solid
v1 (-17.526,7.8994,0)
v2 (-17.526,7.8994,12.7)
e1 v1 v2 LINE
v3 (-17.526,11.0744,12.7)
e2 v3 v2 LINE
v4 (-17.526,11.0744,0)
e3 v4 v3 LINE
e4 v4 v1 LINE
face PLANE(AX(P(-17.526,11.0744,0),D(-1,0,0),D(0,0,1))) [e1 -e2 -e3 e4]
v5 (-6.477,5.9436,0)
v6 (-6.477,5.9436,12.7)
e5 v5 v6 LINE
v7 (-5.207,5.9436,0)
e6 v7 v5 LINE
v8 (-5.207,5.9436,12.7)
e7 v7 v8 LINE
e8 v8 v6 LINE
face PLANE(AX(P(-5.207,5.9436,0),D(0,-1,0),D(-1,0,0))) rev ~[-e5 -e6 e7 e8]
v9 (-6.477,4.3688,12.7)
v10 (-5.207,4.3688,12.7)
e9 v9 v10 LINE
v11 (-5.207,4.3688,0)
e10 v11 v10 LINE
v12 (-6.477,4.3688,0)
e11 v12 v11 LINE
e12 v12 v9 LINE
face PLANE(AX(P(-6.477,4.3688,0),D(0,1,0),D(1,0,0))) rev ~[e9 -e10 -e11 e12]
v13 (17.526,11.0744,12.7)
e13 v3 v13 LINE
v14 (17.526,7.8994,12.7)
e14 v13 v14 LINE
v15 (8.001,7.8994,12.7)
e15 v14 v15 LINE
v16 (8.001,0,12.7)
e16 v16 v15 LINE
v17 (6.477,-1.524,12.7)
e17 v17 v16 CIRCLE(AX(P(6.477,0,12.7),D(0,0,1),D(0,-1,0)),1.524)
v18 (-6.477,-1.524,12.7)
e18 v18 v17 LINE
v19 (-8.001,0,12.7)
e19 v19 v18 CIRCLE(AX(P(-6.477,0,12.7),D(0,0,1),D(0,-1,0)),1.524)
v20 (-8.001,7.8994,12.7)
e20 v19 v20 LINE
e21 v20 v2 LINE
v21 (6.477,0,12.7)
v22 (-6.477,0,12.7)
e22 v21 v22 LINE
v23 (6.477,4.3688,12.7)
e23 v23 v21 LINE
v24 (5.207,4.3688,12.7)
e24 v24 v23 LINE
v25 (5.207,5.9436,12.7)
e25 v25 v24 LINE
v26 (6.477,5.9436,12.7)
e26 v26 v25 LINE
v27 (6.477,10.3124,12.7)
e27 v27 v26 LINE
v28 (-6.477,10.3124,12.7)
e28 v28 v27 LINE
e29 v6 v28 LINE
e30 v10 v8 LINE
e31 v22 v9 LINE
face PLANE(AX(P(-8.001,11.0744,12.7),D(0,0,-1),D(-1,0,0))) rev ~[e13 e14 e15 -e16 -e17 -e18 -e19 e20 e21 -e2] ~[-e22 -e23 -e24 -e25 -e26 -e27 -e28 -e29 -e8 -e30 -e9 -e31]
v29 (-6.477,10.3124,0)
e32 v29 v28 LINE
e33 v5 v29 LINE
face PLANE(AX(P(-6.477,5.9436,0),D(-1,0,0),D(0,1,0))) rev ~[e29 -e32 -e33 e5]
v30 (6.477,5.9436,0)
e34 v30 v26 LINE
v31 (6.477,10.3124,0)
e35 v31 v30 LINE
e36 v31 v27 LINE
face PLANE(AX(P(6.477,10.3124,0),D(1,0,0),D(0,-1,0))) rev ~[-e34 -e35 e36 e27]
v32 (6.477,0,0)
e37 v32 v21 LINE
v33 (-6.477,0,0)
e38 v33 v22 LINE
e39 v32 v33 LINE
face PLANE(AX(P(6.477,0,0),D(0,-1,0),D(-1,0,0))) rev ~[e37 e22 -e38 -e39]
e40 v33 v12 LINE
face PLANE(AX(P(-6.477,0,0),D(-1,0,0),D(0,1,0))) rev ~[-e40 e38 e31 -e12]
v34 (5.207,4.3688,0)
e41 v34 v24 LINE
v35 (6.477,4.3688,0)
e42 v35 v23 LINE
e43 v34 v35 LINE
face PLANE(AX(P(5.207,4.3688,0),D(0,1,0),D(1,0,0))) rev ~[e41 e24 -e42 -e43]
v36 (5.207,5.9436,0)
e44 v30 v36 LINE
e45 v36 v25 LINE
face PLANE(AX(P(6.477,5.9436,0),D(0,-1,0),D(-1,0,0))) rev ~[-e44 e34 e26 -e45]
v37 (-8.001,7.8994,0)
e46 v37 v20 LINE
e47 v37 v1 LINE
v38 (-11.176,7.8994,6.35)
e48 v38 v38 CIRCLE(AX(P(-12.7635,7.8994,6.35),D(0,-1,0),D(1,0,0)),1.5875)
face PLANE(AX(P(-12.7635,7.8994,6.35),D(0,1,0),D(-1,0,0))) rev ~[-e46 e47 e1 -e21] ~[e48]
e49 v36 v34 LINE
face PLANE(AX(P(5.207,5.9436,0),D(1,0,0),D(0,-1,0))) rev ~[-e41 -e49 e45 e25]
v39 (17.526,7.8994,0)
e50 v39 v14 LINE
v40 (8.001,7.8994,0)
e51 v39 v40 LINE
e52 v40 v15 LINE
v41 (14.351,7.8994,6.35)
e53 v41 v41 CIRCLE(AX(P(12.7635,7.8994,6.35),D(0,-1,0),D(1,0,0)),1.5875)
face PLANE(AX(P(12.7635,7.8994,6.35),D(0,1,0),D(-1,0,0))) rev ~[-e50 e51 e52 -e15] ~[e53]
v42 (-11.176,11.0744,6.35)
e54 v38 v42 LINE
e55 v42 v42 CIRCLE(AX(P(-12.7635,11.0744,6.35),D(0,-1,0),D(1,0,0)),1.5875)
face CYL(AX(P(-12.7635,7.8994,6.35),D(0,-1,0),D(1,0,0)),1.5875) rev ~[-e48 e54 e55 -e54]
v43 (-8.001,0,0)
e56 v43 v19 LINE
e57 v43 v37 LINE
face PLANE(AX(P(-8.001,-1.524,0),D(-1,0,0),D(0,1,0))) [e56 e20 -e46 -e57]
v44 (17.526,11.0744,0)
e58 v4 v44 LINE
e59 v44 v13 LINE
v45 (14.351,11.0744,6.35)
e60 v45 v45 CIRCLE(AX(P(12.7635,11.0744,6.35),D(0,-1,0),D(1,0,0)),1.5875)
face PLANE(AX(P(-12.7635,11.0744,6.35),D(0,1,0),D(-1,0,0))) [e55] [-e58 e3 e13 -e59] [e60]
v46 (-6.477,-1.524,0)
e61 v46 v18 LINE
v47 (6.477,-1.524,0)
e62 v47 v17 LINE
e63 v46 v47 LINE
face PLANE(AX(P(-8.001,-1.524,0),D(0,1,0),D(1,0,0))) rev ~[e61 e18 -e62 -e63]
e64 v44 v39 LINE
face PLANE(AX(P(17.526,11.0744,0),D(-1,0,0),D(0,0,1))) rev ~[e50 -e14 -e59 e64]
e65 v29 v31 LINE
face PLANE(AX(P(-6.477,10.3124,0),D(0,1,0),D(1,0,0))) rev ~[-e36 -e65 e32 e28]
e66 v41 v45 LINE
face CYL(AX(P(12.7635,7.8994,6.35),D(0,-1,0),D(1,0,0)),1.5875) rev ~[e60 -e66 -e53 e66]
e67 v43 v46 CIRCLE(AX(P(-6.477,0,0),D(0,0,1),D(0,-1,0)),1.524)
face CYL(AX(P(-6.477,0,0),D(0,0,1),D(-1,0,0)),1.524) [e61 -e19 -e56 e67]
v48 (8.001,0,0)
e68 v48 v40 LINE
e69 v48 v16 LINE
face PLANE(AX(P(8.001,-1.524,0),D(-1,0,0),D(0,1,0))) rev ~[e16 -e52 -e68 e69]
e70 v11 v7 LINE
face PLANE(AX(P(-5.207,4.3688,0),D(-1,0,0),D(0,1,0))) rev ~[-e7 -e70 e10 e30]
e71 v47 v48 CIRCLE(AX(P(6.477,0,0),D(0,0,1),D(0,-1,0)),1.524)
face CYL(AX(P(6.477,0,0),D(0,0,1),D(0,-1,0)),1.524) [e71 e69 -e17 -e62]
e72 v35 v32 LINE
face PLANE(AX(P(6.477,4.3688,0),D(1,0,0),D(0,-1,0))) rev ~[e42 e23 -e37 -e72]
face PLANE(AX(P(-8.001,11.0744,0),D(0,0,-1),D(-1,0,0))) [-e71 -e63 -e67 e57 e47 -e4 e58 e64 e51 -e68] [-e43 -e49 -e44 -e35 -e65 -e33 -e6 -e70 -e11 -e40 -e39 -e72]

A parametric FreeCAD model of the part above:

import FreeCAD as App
import Part
import Sketcher
Q = App.Units.Quantity


def edges_at(feature, points):
    """Names of the edges that pass closest to the given points."""
    edges = feature.Shape.Edges
    near = lambda p: min(range(len(edges)), key=lambda i: edges[i].distToShape(Part.Vertex(*p))[0])
    return sorted({f"Edge{near(p) + 1}" for p in points})

doc = App.newDocument("Part")
body = doc.addObject("PartDesign::Body", "Body")

sketch1 = body.newObject("Sketcher::SketchObject", "Sketch")
sketch1.AttachmentSupport = (doc.getObject("XY_Plane"), [""])
sketch1.MapMode = "FlatFace"
sketch1.addGeometry(Part.LineSegment(App.Vector(-8, 11.1, 0), App.Vector(-8, -1.5, 0)), False)
sketch1.addGeometry(Part.LineSegment(App.Vector(-8, -1.5, 0), App.Vector(8, -1.5, 0)), False)
sketch1.addGeometry(Part.LineSegment(App.Vector(8, -1.5, 0), App.Vector(8, 11.1, 0)), False)
sketch1.addGeometry(Part.LineSegment(App.Vector(8, 11.1, 0), App.Vector(-8, 11.1, 0)), False)
sketch1.addGeometry(Part.LineSegment(App.Vector(5.2, 4.4, 0), App.Vector(6.5, 4.4, 0)), False)
sketch1.addGeometry(Part.LineSegment(App.Vector(6.5, 4.4, 0), App.Vector(6.5, 0, 0)), False)
sketch1.addGeometry(Part.LineSegment(App.Vector(6.5, 0, 0), App.Vector(-6.5, 0, 0)), False)
sketch1.addGeometry(Part.LineSegment(App.Vector(-6.5, 0, 0), App.Vector(-6.5, 4.4, 0)), False)
sketch1.addGeometry(Part.LineSegment(App.Vector(-6.5, 4.4, 0), App.Vector(-5.2, 4.4, 0)), False)
sketch1.addGeometry(Part.LineSegment(App.Vector(-5.2, 4.4, 0), App.Vector(-5.2, 5.9, 0)), False)
sketch1.addGeometry(Part.LineSegment(App.Vector(-5.2, 5.9, 0), App.Vector(-6.5, 5.9, 0)), False)
sketch1.addGeometry(Part.LineSegment(App.Vector(-6.5, 5.9, 0), App.Vector(-6.5, 10.3, 0)), False)
sketch1.addGeometry(Part.LineSegment(App.Vector(-6.5, 10.3, 0), App.Vector(6.5, 10.3, 0)), False)
sketch1.addGeometry(Part.LineSegment(App.Vector(6.5, 10.3, 0), App.Vector(6.5, 5.9, 0)), False)
sketch1.addGeometry(Part.LineSegment(App.Vector(6.5, 5.9, 0), App.Vector(5.2, 5.9, 0)), False)
sketch1.addGeometry(Part.LineSegment(App.Vector(5.2, 5.9, 0), App.Vector(5.2, 4.4, 0)), False)
sketch1.addConstraint(Sketcher.Constraint("Coincident", 0, 2, 1, 1))
sketch1.addConstraint(Sketcher.Constraint("Coincident", 1, 2, 2, 1))
sketch1.addConstraint(Sketcher.Constraint("Coincident", 2, 2, 3, 1))
sketch1.addConstraint(Sketcher.Constraint("Coincident", 3, 2, 0, 1))
sketch1.addConstraint(Sketcher.Constraint("Coincident", 4, 2, 5, 1))
sketch1.addConstraint(Sketcher.Constraint("Coincident", 5, 2, 6, 1))
sketch1.addConstraint(Sketcher.Constraint("Coincident", 6, 2, 7, 1))
sketch1.addConstraint(Sketcher.Constraint("Coincident", 7, 2, 8, 1))
sketch1.addConstraint(Sketcher.Constraint("Coincident", 8, 2, 9, 1))
sketch1.addConstraint(Sketcher.Constraint("Coincident", 9, 2, 10, 1))
sketch1.addConstraint(Sketcher.Constraint("Coincident", 10, 2, 11, 1))
sketch1.addConstraint(Sketcher.Constraint("Coincident", 11, 2, 12, 1))
sketch1.addConstraint(Sketcher.Constraint("Coincident", 12, 2, 13, 1))
sketch1.addConstraint(Sketcher.Constraint("Coincident", 13, 2, 14, 1))
sketch1.addConstraint(Sketcher.Constraint("Coincident", 14, 2, 15, 1))
sketch1.addConstraint(Sketcher.Constraint("Coincident", 15, 2, 4, 1))
sketch1.addConstraint(Sketcher.Constraint("Vertical", 0))
sketch1.addConstraint(Sketcher.Constraint("Horizontal", 1))
sketch1.addConstraint(Sketcher.Constraint("Vertical", 2))
sketch1.addConstraint(Sketcher.Constraint("Horizontal", 3))
sketch1.addConstraint(Sketcher.Constraint("Horizontal", 4))
sketch1.addConstraint(Sketcher.Constraint("Vertical", 5))
sketch1.addConstraint(Sketcher.Constraint("Horizontal", 6))
sketch1.addConstraint(Sketcher.Constraint("Vertical", 7))
sketch1.addConstraint(Sketcher.Constraint("Horizontal", 8))
sketch1.addConstraint(Sketcher.Constraint("Vertical", 9))
sketch1.addConstraint(Sketcher.Constraint("Horizontal", 10))
sketch1.addConstraint(Sketcher.Constraint("Vertical", 11))
sketch1.addConstraint(Sketcher.Constraint("Horizontal", 12))
sketch1.addConstraint(Sketcher.Constraint("Vertical", 13))
sketch1.addConstraint(Sketcher.Constraint("Horizontal", 14))
sketch1.addConstraint(Sketcher.Constraint("Vertical", 15))
sketch1.addConstraint(Sketcher.Constraint("Symmetric", 5, 2, 6, 2, -1, 1))
sketch1.addConstraint(Sketcher.Constraint("Symmetric", 10, 2, 13, 2, -2))
sketch1.addConstraint(Sketcher.Constraint("Symmetric", 8, 2, 15, 2, -2))
sketch1.addConstraint(Sketcher.Constraint("Vertical", 7, 2, 10, 2))
sketch1.addConstraint(Sketcher.Constraint("Equal", 7, 11))
sketch1.addConstraint(Sketcher.Constraint("DistanceX", 1, 1, 1, 2, Q("0.63 in")))
sketch1.addConstraint(Sketcher.Constraint("DistanceX", 4, 1, 4, 2, Q("0.05 in")))
sketch1.addConstraint(Sketcher.Constraint("DistanceX", 6, 2, 6, 1, Q("0.51 in")))
sketch1.addConstraint(Sketcher.Constraint("DistanceY", 0, 2, 0, 1, Q("0.496 in")))
sketch1.addConstraint(Sketcher.Constraint("DistanceY", 5, 2, 5, 1, Q("0.172 in")))
sketch1.addConstraint(Sketcher.Constraint("DistanceY", 9, 1, 9, 2, Q("0.062 in")))
sketch1.addConstraint(Sketcher.Constraint("DistanceY", 0, 2, -1, 1, Q("0.06 in")))
sketch1.addConstraint(Sketcher.Constraint("DistanceX", 4, 2, 1, 2, Q("0.06 in")))
pad1 = body.newObject("PartDesign::Pad", "Pad")
pad1.Profile = sketch1
pad1.Length = Q("0.5 in")

sketch2 = body.newObject("Sketcher::SketchObject", "Sketch001")
sketch2.AttachmentSupport = (doc.getObject("XZ_Plane"), [""])
sketch2.MapMode = "FlatFace"
sketch2.AttachmentOffset = App.Placement(App.Vector(0, 0, -0.436 * 25.4), App.Rotation())
sketch2.addGeometry(Part.LineSegment(App.Vector(-8, 13, 0), App.Vector(-8, 0, 0)), False)
sketch2.addGeometry(Part.LineSegment(App.Vector(-8, 0, 0), App.Vector(-18, 0, 0)), False)
sketch2.addGeometry(Part.LineSegment(App.Vector(-18, 0, 0), App.Vector(-18, 13, 0)), False)
sketch2.addGeometry(Part.LineSegment(App.Vector(-18, 13, 0), App.Vector(-8, 13, 0)), False)
sketch2.addGeometry(Part.LineSegment(App.Vector(18, 13, 0), App.Vector(18, 0, 0)), False)
sketch2.addGeometry(Part.LineSegment(App.Vector(18, 0, 0), App.Vector(8, 0, 0)), False)
sketch2.addGeometry(Part.LineSegment(App.Vector(8, 0, 0), App.Vector(8, 13, 0)), False)
sketch2.addGeometry(Part.LineSegment(App.Vector(8, 13, 0), App.Vector(18, 13, 0)), False)
sketch2.addConstraint(Sketcher.Constraint("Coincident", 0, 2, 1, 1))
sketch2.addConstraint(Sketcher.Constraint("Coincident", 1, 2, 2, 1))
sketch2.addConstraint(Sketcher.Constraint("Coincident", 2, 2, 3, 1))
sketch2.addConstraint(Sketcher.Constraint("Coincident", 3, 2, 0, 1))
sketch2.addConstraint(Sketcher.Constraint("Coincident", 4, 2, 5, 1))
sketch2.addConstraint(Sketcher.Constraint("Coincident", 5, 2, 6, 1))
sketch2.addConstraint(Sketcher.Constraint("Coincident", 6, 2, 7, 1))
sketch2.addConstraint(Sketcher.Constraint("Coincident", 7, 2, 4, 1))
sketch2.addConstraint(Sketcher.Constraint("Vertical", 0))
sketch2.addConstraint(Sketcher.Constraint("Horizontal", 1))
sketch2.addConstraint(Sketcher.Constraint("Vertical", 2))
sketch2.addConstraint(Sketcher.Constraint("Horizontal", 3))
sketch2.addConstraint(Sketcher.Constraint("Vertical", 4))
sketch2.addConstraint(Sketcher.Constraint("Horizontal", 5))
sketch2.addConstraint(Sketcher.Constraint("Vertical", 6))
sketch2.addConstraint(Sketcher.Constraint("Horizontal", 7))
sketch2.addConstraint(Sketcher.Constraint("Symmetric", 1, 2, 4, 2, -1, 1))
sketch2.addConstraint(Sketcher.Constraint("Symmetric", 0, 2, 5, 2, -2))
sketch2.addConstraint(Sketcher.Constraint("Horizontal", 3, 2, 6, 2))
sketch2.addConstraint(Sketcher.Constraint("DistanceY", 0, 2, 0, 1, Q("0.5 in")))
sketch2.addConstraint(Sketcher.Constraint("DistanceX", 1, 2, 1, 1, Q("0.375 in")))
sketch2.addConstraint(Sketcher.Constraint("DistanceX", 1, 2, -1, 1, Q("0.69 in")))
pad2 = body.newObject("PartDesign::Pad", "Pad001")
pad2.Profile = sketch2
pad2.Length = Q("0.125 in")
doc.recompute()

fillet = body.newObject("PartDesign::Fillet", "Fillet")
fillet.Base = (pad2, edges_at(pad2, [(-8.001, -1.524, 6.35), (8.001, -1.524, 6.35)]))
fillet.Radius = Q("0.06 in")

sketch3 = body.newObject("Sketcher::SketchObject", "Sketch002")
sketch3.AttachmentSupport = (doc.getObject("XZ_Plane"), [""])
sketch3.MapMode = "FlatFace"
sketch3.AttachmentOffset = App.Placement(App.Vector(0, 0, -0.311 * 25.4), App.Rotation())
sketch3.addGeometry(Part.Circle(App.Vector(-12.8, 6.3, 0), App.Vector(0, 0, 1), 1.6), False)
sketch3.addGeometry(Part.Circle(App.Vector(12.8, 6.3, 0), App.Vector(0, 0, 1), 1.6), False)
sketch3.addConstraint(Sketcher.Constraint("Equal", 0, 1))
sketch3.addConstraint(Sketcher.Constraint("Symmetric", 0, 3, 1, 3, -2))
sketch3.addConstraint(Sketcher.Constraint("Diameter", 0, Q("0.125 in")))
sketch3.addConstraint(Sketcher.Constraint("DistanceY", -1, 1, 0, 3, Q("0.25 in")))
sketch3.addConstraint(Sketcher.Constraint("DistanceX", 0, 3, 1, 3, Q("1.005 in")))
pocket1 = body.newObject("PartDesign::Pocket", "Pocket")
pocket1.Profile = sketch3
pocket1.Length = Q("1 in")

doc.recompute()
